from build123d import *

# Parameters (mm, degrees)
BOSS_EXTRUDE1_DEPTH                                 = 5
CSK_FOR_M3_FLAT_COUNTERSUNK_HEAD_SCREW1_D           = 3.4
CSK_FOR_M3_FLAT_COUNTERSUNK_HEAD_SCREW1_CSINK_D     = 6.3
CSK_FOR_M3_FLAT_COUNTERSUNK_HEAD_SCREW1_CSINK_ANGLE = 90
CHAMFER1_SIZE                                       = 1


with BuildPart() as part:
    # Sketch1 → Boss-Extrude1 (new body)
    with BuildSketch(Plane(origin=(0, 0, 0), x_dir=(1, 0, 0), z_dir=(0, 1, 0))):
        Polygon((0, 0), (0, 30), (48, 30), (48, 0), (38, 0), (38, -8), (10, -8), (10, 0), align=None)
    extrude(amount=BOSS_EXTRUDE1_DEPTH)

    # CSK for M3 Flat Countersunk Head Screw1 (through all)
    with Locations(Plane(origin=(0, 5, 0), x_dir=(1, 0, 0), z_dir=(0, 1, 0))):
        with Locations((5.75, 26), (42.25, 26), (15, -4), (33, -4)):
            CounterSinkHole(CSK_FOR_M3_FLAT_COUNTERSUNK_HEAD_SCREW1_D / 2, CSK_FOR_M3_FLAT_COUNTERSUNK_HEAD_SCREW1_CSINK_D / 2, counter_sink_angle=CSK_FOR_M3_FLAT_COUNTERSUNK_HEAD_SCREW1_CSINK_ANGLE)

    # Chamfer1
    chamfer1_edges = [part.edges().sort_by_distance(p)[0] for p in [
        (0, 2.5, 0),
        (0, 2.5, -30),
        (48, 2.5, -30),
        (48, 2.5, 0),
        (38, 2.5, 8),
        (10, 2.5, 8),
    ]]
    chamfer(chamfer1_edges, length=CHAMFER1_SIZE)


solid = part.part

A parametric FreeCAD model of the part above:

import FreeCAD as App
import Part
import Sketcher


def edges_at(feature, points):
    """Names of the edges that pass closest to the given points."""
    edges = feature.Shape.Edges
    near = lambda p: min(range(len(edges)), key=lambda i: edges[i].distToShape(Part.Vertex(*p))[0])
    return sorted({f"Edge{near(p) + 1}" for p in points})


def add_polygon(sketch, points):
    """Adds a closed chain of lines whose ends are joined by coincident constraints."""
    first, n = sketch.GeometryCount, len(points)
    for a, b in zip(points, points[1:] + points[:1]):
        sketch.addGeometry(Part.LineSegment(App.Vector(*a, 0), App.Vector(*b, 0)), False)
    for i in range(n):
        sketch.addConstraint(Sketcher.Constraint("Coincident", first + i, 2, first + (i + 1) % n, 1))

doc = App.newDocument("Part")
body = doc.addObject("PartDesign::Body", "Body")

# Sketch on XZ plane
sketch1 = body.newObject("Sketcher::SketchObject", "Sketch")
sketch1.AttachmentSupport = (doc.getObject("XZ_Plane"), [""])
sketch1.MapMode = "FlatFace"
add_polygon(sketch1, [(0, -30), (0, 0), (10, 0), (10, 8), (38, 8), (38, 0), (48, 0), (48, -30)])  # lines 0-7
sketch1.addConstraint([
    Sketcher.Constraint("Vertical", 0),
    Sketcher.Constraint("Horizontal", 1),
    Sketcher.Constraint("Vertical", 2),
    Sketcher.Constraint("Horizontal", 3),
    Sketcher.Constraint("Vertical", 4),
    Sketcher.Constraint("Horizontal", 5),
    Sketcher.Constraint("Vertical", 6),
    Sketcher.Constraint("Horizontal", 7),
    Sketcher.Constraint("Coincident", 0, 2, -1, 1),
    Sketcher.Constraint("PointOnObject", 4, 2, -1),
    Sketcher.Constraint("Equal", 1, 5),
    Sketcher.Constraint("DistanceX", 1, 1, 1, 2, 10.0),
    Sketcher.Constraint("DistanceX", 3, 1, 3, 2, 28.0),
    Sketcher.Constraint("DistanceY", 0, 1, 0, 2, 30.0),
    Sketcher.Constraint("DistanceY", 2, 1, 2, 2, 8.0),
])
pad1 = body.newObject("PartDesign::Pad", "Pad")
pad1.Profile = sketch1
pad1.Length = 5
pad1.Reversed = True

# Sketch on XZ plane
sketch2 = body.newObject("Sketcher::SketchObject", "Sketch001")
sketch2.AttachmentSupport = (doc.getObject("XZ_Plane"), [""])
sketch2.MapMode = "FlatFace"
sketch2.AttachmentOffset = App.Placement(App.Vector(0, 0, -5), App.Rotation())
sketch2.addGeometry([
    Part.Circle(App.Vector(5.8, -26, 0), App.Vector(0, 0, 1), 1.7),
    Part.Circle(App.Vector(42.2, -26, 0), App.Vector(0, 0, 1), 1.7),
    Part.Circle(App.Vector(15, 4, 0), App.Vector(0, 0, 1), 1.7),
    Part.Circle(App.Vector(33, 4, 0), App.Vector(0, 0, 1), 1.7),
], False)
sketch2.addConstraint([
    Sketcher.Constraint("Equal", 0, 1),
    Sketcher.Constraint("Equal", 1, 2),
    Sketcher.Constraint("Equal", 2, 3),
    Sketcher.Constraint("Horizontal", 0, 3, 1, 3),
    Sketcher.Constraint("Horizontal", 2, 3, 3, 3),
    Sketcher.Constraint("Diameter", 0, 3.4),
    Sketcher.Constraint("DistanceY", 0, 3, -1, 1, 26.0),
    Sketcher.Constraint("DistanceX", -1, 1, 2, 3, 15.0),
    Sketcher.Constraint("DistanceY", -1, 1, 2, 3, 4.0),
    Sketcher.Constraint("DistanceX", -1, 1, 3, 3, 33.0),
    Sketcher.Constraint("DistanceX", 0, 3, 1, 3, 36.5),
    Sketcher.Constraint("DistanceX", -1, 1, 0, 3, 5.75),
])
doc.recompute()
hole = body.newObject("PartDesign::Hole", "Hole")
hole.Profile = sketch2
hole.ThreadType = "None"
hole.Diameter = 3.4
hole.DepthType = "ThroughAll"
hole.HoleCutType = "Countersink"
hole.HoleCutDiameter = 6.3
hole.HoleCutCountersinkAngle = 90
hole.Reversed = True
doc.recompute()

chamfer = body.newObject("PartDesign::Chamfer", "Chamfer")
chamfer.Base = (hole, edges_at(hole, [
    (0, 2.5, 0),
    (0, 2.5, -30),
    (48, 2.5, -30),
    (48, 2.5, 0),
    (38, 2.5, 8),
    (10, 2.5, 8),
]))
chamfer.Size = 1

doc.recompute()
